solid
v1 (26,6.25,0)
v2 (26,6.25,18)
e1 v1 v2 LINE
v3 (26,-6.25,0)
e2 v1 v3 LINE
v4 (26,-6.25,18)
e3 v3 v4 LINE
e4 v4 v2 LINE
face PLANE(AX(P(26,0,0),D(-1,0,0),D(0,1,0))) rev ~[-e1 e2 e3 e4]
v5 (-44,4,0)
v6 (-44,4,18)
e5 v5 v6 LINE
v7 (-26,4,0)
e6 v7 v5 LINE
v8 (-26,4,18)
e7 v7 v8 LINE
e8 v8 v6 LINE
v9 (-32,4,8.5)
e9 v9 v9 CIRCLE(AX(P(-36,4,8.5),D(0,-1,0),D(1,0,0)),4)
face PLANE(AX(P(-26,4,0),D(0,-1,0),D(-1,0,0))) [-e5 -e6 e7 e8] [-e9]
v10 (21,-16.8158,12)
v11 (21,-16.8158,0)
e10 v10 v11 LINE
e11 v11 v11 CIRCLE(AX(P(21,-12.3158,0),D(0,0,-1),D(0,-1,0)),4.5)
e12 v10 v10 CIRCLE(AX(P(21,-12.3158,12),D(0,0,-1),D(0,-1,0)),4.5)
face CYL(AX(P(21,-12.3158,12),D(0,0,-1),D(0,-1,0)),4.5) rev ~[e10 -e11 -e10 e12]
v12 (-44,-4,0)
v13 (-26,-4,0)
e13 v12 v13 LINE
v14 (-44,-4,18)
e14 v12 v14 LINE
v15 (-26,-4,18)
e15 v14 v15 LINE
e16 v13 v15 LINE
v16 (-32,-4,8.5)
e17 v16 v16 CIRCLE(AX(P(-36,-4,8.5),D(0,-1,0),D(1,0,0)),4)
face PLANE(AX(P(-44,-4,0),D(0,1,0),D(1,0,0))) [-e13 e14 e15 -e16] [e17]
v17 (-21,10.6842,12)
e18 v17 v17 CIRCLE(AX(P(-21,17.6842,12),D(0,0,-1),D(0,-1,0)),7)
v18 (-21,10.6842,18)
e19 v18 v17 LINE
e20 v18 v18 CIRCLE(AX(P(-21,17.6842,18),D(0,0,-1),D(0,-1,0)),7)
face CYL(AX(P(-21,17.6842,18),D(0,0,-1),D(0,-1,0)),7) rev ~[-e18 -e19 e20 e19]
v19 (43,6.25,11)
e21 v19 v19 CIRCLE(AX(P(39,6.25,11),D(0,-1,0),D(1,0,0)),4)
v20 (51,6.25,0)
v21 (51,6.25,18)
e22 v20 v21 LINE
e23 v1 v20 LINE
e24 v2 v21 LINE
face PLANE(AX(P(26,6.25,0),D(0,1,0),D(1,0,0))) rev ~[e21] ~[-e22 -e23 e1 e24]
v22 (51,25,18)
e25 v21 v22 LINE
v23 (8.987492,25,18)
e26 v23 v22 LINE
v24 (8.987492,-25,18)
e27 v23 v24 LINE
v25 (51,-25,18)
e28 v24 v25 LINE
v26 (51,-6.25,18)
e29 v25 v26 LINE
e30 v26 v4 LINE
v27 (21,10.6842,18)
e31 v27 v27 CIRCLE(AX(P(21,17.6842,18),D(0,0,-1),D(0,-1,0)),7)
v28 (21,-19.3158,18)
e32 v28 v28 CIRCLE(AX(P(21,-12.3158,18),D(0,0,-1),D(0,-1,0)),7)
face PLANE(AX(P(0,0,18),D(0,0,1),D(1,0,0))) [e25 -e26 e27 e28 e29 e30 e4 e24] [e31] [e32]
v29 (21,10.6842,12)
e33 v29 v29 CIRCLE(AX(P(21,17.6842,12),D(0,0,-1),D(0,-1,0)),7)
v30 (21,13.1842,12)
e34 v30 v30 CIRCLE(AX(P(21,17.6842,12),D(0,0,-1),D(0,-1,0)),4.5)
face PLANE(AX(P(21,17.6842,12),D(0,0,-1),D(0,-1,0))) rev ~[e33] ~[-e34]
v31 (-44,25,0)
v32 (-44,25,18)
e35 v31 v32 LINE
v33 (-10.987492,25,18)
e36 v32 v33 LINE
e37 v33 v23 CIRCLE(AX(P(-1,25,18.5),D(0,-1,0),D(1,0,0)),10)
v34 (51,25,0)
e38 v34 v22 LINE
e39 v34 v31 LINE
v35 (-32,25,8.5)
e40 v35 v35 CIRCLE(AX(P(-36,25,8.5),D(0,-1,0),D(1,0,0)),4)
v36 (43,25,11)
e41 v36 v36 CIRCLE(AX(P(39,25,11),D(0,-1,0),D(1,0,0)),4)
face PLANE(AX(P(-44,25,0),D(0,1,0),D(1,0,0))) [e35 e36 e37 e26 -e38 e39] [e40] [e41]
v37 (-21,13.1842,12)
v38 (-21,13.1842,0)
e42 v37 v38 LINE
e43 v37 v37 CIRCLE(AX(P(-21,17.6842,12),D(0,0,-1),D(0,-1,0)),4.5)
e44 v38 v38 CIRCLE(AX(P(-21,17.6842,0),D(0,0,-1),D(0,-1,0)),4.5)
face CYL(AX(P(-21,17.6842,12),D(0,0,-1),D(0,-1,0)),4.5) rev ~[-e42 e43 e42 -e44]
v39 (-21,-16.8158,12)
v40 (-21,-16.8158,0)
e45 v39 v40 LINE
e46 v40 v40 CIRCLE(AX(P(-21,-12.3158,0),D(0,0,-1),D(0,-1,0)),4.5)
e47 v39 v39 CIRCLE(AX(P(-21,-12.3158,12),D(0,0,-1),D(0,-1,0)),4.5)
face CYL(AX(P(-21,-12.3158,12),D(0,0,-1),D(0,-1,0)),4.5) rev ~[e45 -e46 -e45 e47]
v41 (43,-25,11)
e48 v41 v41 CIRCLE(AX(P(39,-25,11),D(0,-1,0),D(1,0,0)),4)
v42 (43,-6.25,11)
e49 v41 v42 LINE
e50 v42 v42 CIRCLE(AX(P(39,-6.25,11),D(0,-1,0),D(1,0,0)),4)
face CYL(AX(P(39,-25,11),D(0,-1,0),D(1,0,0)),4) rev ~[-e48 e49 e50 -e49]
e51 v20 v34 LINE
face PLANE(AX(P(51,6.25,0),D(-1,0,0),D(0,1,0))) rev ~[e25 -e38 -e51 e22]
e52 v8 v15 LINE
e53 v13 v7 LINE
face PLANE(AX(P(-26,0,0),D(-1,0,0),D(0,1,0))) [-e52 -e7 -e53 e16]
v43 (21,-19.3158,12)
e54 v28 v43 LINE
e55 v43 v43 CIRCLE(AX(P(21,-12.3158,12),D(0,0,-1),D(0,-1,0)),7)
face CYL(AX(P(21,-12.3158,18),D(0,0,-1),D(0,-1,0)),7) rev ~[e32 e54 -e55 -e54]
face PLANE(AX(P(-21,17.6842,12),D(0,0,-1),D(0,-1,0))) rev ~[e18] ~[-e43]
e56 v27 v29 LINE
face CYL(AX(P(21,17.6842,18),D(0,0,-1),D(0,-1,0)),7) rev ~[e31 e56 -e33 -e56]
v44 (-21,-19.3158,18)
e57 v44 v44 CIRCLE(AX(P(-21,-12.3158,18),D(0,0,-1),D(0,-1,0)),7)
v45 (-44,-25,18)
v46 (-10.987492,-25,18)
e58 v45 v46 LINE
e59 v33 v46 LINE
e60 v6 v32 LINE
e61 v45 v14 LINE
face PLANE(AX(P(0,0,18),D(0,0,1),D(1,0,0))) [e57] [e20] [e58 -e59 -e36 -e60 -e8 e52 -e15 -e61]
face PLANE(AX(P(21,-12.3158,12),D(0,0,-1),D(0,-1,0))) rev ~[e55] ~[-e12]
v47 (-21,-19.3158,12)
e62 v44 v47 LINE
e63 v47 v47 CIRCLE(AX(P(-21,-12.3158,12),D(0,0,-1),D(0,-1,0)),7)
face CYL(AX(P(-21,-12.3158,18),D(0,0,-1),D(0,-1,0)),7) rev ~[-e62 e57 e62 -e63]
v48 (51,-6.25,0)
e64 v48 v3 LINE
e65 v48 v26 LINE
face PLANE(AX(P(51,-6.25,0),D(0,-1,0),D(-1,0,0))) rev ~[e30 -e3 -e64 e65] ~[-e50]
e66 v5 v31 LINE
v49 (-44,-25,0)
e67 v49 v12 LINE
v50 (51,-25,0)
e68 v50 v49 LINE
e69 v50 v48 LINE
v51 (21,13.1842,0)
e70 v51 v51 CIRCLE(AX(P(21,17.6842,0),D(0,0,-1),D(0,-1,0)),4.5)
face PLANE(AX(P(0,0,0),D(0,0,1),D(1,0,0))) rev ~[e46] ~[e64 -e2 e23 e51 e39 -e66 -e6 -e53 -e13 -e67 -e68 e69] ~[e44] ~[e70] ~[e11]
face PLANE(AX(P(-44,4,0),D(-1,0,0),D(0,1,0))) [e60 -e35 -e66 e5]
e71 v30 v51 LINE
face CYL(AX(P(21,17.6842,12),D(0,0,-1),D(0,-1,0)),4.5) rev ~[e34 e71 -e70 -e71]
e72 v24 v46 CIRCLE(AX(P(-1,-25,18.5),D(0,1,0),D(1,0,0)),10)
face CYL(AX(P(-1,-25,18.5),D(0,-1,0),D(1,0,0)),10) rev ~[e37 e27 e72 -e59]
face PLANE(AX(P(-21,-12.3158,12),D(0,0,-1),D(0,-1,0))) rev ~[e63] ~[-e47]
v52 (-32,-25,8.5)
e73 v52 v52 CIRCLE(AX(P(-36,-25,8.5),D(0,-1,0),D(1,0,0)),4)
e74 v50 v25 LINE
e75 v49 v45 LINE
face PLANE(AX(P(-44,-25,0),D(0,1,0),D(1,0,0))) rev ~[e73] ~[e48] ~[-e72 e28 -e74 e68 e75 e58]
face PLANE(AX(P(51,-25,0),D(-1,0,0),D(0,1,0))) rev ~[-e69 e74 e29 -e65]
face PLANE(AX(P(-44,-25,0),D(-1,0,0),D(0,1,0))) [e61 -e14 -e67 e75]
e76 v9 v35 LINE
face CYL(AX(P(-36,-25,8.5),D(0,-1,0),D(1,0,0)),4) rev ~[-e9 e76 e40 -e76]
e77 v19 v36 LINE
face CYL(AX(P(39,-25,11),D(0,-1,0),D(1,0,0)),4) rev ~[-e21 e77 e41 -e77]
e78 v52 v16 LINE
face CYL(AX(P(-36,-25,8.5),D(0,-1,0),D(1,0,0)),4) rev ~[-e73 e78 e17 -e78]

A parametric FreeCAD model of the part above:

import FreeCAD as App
import Part
import Sketcher
Q = App.Units.Quantity

doc = App.newDocument("Part")
body = doc.addObject("PartDesign::Body", "Body")

sketch1 = body.newObject("Sketcher::SketchObject", "Sketch")
sketch1.AttachmentSupport = (doc.getObject("XY_Plane"), [""])
sketch1.MapMode = "FlatFace"
sketch1.addGeometry([
    Part.LineSegment(App.Vector(-44, 25, 0), App.Vector(-44, 4, 0)),
    Part.LineSegment(App.Vector(-44, 4, 0), App.Vector(-26, 4, 0)),
    Part.LineSegment(App.Vector(-26, 4, 0), App.Vector(-26, -4, 0)),
    Part.LineSegment(App.Vector(-26, -4, 0), App.Vector(-44, -4, 0)),
    Part.LineSegment(App.Vector(-44, -4, 0), App.Vector(-44, -25, 0)),
    Part.LineSegment(App.Vector(-44, -25, 0), App.Vector(51, -25, 0)),
    Part.LineSegment(App.Vector(51, -25, 0), App.Vector(51, -6, 0)),
    Part.LineSegment(App.Vector(51, -6, 0), App.Vector(26, -6, 0)),
    Part.LineSegment(App.Vector(26, -6, 0), App.Vector(26, 6, 0)),
    Part.LineSegment(App.Vector(26, 6, 0), App.Vector(51, 6, 0)),
    Part.LineSegment(App.Vector(51, 6, 0), App.Vector(51, 25, 0)),
    Part.LineSegment(App.Vector(51, 25, 0), App.Vector(-44, 25, 0)),
], False)
sketch1.addConstraint([
    Sketcher.Constraint("Coincident", 0, 2, 1, 1),
    Sketcher.Constraint("Coincident", 1, 2, 2, 1),
    Sketcher.Constraint("Coincident", 2, 2, 3, 1),
    Sketcher.Constraint("Coincident", 3, 2, 4, 1),
    Sketcher.Constraint("Coincident", 4, 2, 5, 1),
    Sketcher.Constraint("Coincident", 5, 2, 6, 1),
    Sketcher.Constraint("Coincident", 6, 2, 7, 1),
    Sketcher.Constraint("Coincident", 7, 2, 8, 1),
    Sketcher.Constraint("Coincident", 8, 2, 9, 1),
    Sketcher.Constraint("Coincident", 9, 2, 10, 1),
    Sketcher.Constraint("Coincident", 10, 2, 11, 1),
    Sketcher.Constraint("Coincident", 11, 2, 0, 1),
    Sketcher.Constraint("Vertical", 0),
    Sketcher.Constraint("Horizontal", 1),
    Sketcher.Constraint("Vertical", 2),
    Sketcher.Constraint("Horizontal", 3),
    Sketcher.Constraint("Vertical", 4),
    Sketcher.Constraint("Horizontal", 5),
    Sketcher.Constraint("Vertical", 6),
    Sketcher.Constraint("Horizontal", 7),
    Sketcher.Constraint("Vertical", 8),
    Sketcher.Constraint("Horizontal", 9),
    Sketcher.Constraint("Vertical", 10),
    Sketcher.Constraint("Horizontal", 11),
    Sketcher.Constraint("Symmetric", 0, 2, 3, 2, -1),
    Sketcher.Constraint("Symmetric", 6, 2, 9, 2, -1),
    Sketcher.Constraint("Equal", 0, 4),
    Sketcher.Constraint("DistanceX", 1, 1, 1, 2, Q("18 mm")),
    Sketcher.Constraint("DistanceX", 5, 1, 5, 2, Q("95 mm")),
    Sketcher.Constraint("DistanceX", 7, 2, 7, 1, Q("25 mm")),
    Sketcher.Constraint("DistanceY", 2, 2, 2, 1, Q("8 mm")),
    Sketcher.Constraint("DistanceY", 8, 1, 8, 2, Q("12.5 mm")),
    Sketcher.Constraint("DistanceY", 4, 2, -1, 1, Q("25 mm")),
    Sketcher.Constraint("DistanceX", 0, 2, -1, 1, Q("44 mm")),
])
pad1 = body.newObject("PartDesign::Pad", "Pad")
pad1.Profile = sketch1
pad1.Length = 18

sketch2 = body.newObject("Sketcher::SketchObject", "Sketch001")
sketch2.AttachmentSupport = (doc.getObject("XZ_Plane"), [""])
sketch2.MapMode = "FlatFace"
sketch2.AttachmentOffset = App.Placement(App.Vector(0, 0, 25), App.Rotation())
sketch2.addGeometry([
    Part.Circle(App.Vector(-1, 18.5, 0), App.Vector(0, 0, 1), 10),
    Part.Circle(App.Vector(-36, 8.5, 0), App.Vector(0, 0, 1), 4),
    Part.Circle(App.Vector(39, 11, 0), App.Vector(0, 0, 1), 4),
], False)
sketch2.addConstraint([
    Sketcher.Constraint("Equal", 1, 2),
    Sketcher.Constraint("Diameter", 0, Q("20 mm")),
    Sketcher.Constraint("Diameter", 1, Q("8 mm")),
    Sketcher.Constraint("DistanceY", -1, 1, 2, 3, Q("11 mm")),
    Sketcher.Constraint("DistanceX", 1, 3, 0, 3, Q("35 mm")),
    Sketcher.Constraint("DistanceX", 0, 3, 2, 3, Q("40 mm")),
    Sketcher.Constraint("DistanceX", 0, 3, -1, 1, Q("1 mm")),
    Sketcher.Constraint("DistanceY", 1, 3, 0, 3, Q("10 mm")),
    Sketcher.Constraint("DistanceY", -1, 1, 0, 3, Q("18.5 mm")),
])
pocket1 = body.newObject("PartDesign::Pocket", "Pocket")
pocket1.Profile = sketch2
pocket1.Type = "ThroughAll"

sketch3 = body.newObject("Sketcher::SketchObject", "Sketch002")
sketch3.AttachmentSupport = (doc.getObject("XY_Plane"), [""])
sketch3.MapMode = "FlatFace"
sketch3.AttachmentOffset = App.Placement(App.Vector(0, 0, 18), App.Rotation())
sketch3.addGeometry([
    Part.Circle(App.Vector(21, -12.3, 0), App.Vector(0, 0, 1), 4.5),
    Part.Circle(App.Vector(21, 17.7, 0), App.Vector(0, 0, 1), 4.5),
    Part.Circle(App.Vector(-21, 17.7, 0), App.Vector(0, 0, 1), 4.5),
    Part.Circle(App.Vector(-21, -12.3, 0), App.Vector(0, 0, 1), 4.5),
], False)
sketch3.addConstraint([
    Sketcher.Constraint("Equal", 0, 1),
    Sketcher.Constraint("Equal", 1, 2),
    Sketcher.Constraint("Equal", 2, 3),
    Sketcher.Constraint("Symmetric", 1, 3, 2, 3, -2),
    Sketcher.Constraint("Symmetric", 0, 3, 3, 3, -2),
    Sketcher.Constraint("Vertical", 0, 3, 1, 3),
    Sketcher.Constraint("Diameter", 0, Q("9 mm")),
    Sketcher.Constraint("DistanceX", -1, 1, 0, 3, Q("21 mm")),
    Sketcher.Constraint("DistanceY", 0, 3, 1, 3, Q("30 mm")),
    Sketcher.Constraint("DistanceY", 0, 3, -1, 1, Q("12.3158 mm")),
])
doc.recompute()
hole = body.newObject("PartDesign::Hole", "Hole")
hole.Profile = sketch3
hole.ThreadType = "None"
hole.Diameter = 9
hole.DepthType = "Dimension"
hole.Depth = 20
hole.DrillPoint = "Angled"
hole.DrillPointAngle = 118
hole.HoleCutType = "Counterbore"
hole.HoleCutDiameter = 14
hole.HoleCutDepth = 6

doc.recompute()
